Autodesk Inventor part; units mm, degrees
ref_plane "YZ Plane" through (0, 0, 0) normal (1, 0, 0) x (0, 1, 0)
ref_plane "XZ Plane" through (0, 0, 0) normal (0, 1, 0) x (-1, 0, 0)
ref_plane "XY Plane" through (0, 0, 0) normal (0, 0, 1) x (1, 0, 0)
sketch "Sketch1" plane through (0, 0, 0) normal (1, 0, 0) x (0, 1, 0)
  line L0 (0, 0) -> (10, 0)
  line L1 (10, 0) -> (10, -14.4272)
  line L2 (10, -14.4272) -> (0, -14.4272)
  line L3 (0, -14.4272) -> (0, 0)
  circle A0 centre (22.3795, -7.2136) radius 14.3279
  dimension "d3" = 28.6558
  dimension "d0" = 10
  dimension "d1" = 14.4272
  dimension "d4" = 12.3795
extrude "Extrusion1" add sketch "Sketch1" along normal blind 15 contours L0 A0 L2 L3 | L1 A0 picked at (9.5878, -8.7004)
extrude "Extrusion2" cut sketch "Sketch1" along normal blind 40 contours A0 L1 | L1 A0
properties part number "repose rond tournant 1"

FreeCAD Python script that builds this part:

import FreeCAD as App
import Part
import Sketcher
from FreeCAD import Vector
Q = App.Units.Quantity


def add_polygon(sketch, points):
    """Adds a closed chain of lines whose ends are joined by coincident constraints."""
    first, n = sketch.GeometryCount, len(points)
    for a, b in zip(points, points[1:] + points[:1]):
        sketch.addGeometry(Part.LineSegment(App.Vector(*a, 0), App.Vector(*b, 0)), False)
    for i in range(n):
        sketch.addConstraint(Sketcher.Constraint("Coincident", first + i, 2, first + (i + 1) % n, 1))

doc = App.newDocument("Part")
body = doc.addObject("PartDesign::Body", "Body")

# Sketch on YZ plane
sketch1 = body.newObject("Sketcher::SketchObject", "Sketch")
sketch1.AttachmentSupport = (doc.getObject("YZ_Plane"), [""])
sketch1.MapMode = "FlatFace"
add_polygon(sketch1, [(10, 0), (0, 0), (0, -14), (10, -14)])  # lines 0-3
sketch1.addConstraint([
    Sketcher.Constraint("Horizontal", 0),
    Sketcher.Constraint("Vertical", 1),
    Sketcher.Constraint("Horizontal", 2),
    Sketcher.Constraint("Vertical", 3),
    Sketcher.Constraint("Coincident", 0, 2, -1, 1),
    Sketcher.Constraint("DistanceX", 0, 2, 0, 1, Q("10 mm")),
    Sketcher.Constraint("DistanceY", 1, 2, 1, 1, Q("14.4272 mm")),
])
pad1 = body.newObject("PartDesign::Pad", "Pad")
pad1.Profile = sketch1
pad1.Length = 15

# Sketch on YZ plane
sketch2 = body.newObject("Sketcher::SketchObject", "Sketch001")
sketch2.AttachmentSupport = (doc.getObject("YZ_Plane"), [""])
sketch2.MapMode = "FlatFace"
sketch2.addGeometry(Part.Circle(Vector(22, -7, 0), Vector(0, 0, 1), 14), False)
sketch2.addConstraint([
    Sketcher.Constraint("Diameter", 0, Q("28.6558 mm")),
    Sketcher.Constraint("DistanceX", -1, 1, 0, 3, Q("22.3795 mm")),
    Sketcher.Constraint("DistanceY", 0, 3, -1, 1, Q("7.2136 mm")),
])
pocket1 = body.newObject("PartDesign::Pocket", "Pocket")
pocket1.Profile = sketch2
pocket1.Length = 40
pocket1.Reversed = True

doc.recompute()
